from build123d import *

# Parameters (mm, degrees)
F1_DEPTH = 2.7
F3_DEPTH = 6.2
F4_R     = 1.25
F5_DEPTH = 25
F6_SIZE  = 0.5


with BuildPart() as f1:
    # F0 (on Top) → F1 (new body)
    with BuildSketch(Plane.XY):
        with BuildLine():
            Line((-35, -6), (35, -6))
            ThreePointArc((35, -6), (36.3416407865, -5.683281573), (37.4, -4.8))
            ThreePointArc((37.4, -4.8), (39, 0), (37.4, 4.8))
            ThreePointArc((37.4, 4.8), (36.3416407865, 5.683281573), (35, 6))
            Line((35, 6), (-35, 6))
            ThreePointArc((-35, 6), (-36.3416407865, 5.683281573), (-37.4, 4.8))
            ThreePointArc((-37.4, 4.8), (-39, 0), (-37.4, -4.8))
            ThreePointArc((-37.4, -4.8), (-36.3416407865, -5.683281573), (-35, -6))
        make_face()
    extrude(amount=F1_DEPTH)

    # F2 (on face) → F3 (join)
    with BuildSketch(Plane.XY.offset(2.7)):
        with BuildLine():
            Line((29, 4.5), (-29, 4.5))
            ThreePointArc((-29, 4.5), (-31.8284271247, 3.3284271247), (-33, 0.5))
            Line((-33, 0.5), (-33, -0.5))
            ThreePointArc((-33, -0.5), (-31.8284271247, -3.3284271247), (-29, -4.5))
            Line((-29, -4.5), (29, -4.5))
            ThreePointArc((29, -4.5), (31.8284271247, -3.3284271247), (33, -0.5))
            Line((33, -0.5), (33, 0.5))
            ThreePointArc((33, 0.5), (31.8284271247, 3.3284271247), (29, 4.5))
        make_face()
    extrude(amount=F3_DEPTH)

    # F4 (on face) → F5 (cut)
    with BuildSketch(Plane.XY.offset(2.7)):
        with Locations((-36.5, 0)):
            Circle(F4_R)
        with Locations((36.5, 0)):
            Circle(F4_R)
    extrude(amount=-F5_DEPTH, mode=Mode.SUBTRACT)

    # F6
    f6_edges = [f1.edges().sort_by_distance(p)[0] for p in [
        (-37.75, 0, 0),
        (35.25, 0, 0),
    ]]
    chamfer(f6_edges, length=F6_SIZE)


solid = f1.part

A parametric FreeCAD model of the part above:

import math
import FreeCAD as App
import Part
import Sketcher

V = App.Vector


def edges_at(feature, points):
    """Names of the edges that pass closest to the given points."""
    edges = feature.Shape.Edges
    near = lambda p: min(range(len(edges)), key=lambda i: edges[i].distToShape(Part.Vertex(*p))[0])
    return sorted({f"Edge{near(p) + 1}" for p in points})

doc = App.newDocument("Part")
params = doc.addObject("Spreadsheet::Sheet", "Params")
for row, (alias, value) in enumerate([
    ("sketch1_radius", "3 mm"),
    ("sketch1_radius2", "8 mm"),
    ("sketch1_width", "70 mm"),
    ("pad1_length", "2.7 mm"),
    ("sketch2_radius", "4 mm"),
    ("sketch2_width", "58 mm"),
    ("sketch2_height", "1 mm"),
    ("pad2_length", "6.2 mm"),
    ("sketch3_diameter", "2.5 mm"),
    ("pocket1_length", "25 mm"),
    ("chamfer_size", "0.5 mm"),
], start=1):
    params.set(f"A{row}", alias)
    params.set(f"B{row}", "=" + value)
    params.setAlias(f"B{row}", alias)

body = doc.addObject("PartDesign::Body", "Body")

# Sketch on XY plane
sketch1 = doc.addObject("Sketcher::SketchObject", "Sketch")
body.addObject(sketch1)
sketch1.AttachmentSupport = (doc.XY_Plane, [""])
sketch1.MapMode = "FlatFace"
sketch1.addGeometry(Part.LineSegment(V(-35, -6, 0), V(35, -6, 0)), False)
sketch1.addGeometry(Part.ArcOfCircle(Part.Circle(V(35, -3, 0), V(0, 0, 1), 3), math.radians(-90), math.radians(-37)), False)
sketch1.addGeometry(Part.ArcOfCircle(Part.Circle(V(31, 0, 0), V(0, 0, 1), 8), math.radians(-37), math.radians(37)), False)
sketch1.addGeometry(Part.ArcOfCircle(Part.Circle(V(35, 3, 0), V(0, 0, 1), 3), math.radians(37), math.radians(90)), False)
sketch1.addGeometry(Part.LineSegment(V(35, 6, 0), V(-35, 6, 0)), False)
sketch1.addGeometry(Part.ArcOfCircle(Part.Circle(V(-35, 3, 0), V(0, 0, 1), 3), math.radians(90), math.radians(143)), False)
sketch1.addGeometry(Part.ArcOfCircle(Part.Circle(V(-31, 0, 0), V(0, 0, 1), 8), math.radians(143), math.radians(217)), False)
sketch1.addGeometry(Part.ArcOfCircle(Part.Circle(V(-35, -3, 0), V(0, 0, 1), 3), math.radians(-143), math.radians(-90)), False)
sketch1.addConstraint(Sketcher.Constraint("Tangent", 0, 2, 1, 1))
sketch1.addConstraint(Sketcher.Constraint("Tangent", 1, 2, 2, 1))
sketch1.addConstraint(Sketcher.Constraint("Tangent", 2, 2, 3, 1))
sketch1.addConstraint(Sketcher.Constraint("Tangent", 3, 2, 4, 1))
sketch1.addConstraint(Sketcher.Constraint("Tangent", 4, 2, 5, 1))
sketch1.addConstraint(Sketcher.Constraint("Tangent", 5, 2, 6, 1))
sketch1.addConstraint(Sketcher.Constraint("Tangent", 6, 2, 7, 1))
sketch1.addConstraint(Sketcher.Constraint("Tangent", 7, 2, 0, 1))
sketch1.addConstraint(Sketcher.Constraint("Horizontal", 0))
sketch1.addConstraint(Sketcher.Constraint("Horizontal", 4))
sketch1.addConstraint(Sketcher.Constraint("Equal", 1, 3))
sketch1.addConstraint(Sketcher.Constraint("Equal", 3, 5))
sketch1.addConstraint(Sketcher.Constraint("Equal", 2, 6))
sketch1.addConstraint(Sketcher.Constraint("Equal", 5, 7))
sketch1.addConstraint(Sketcher.Constraint("Symmetric", 1, 3, 5, 3, -1, 1))
sketch1.addConstraint(Sketcher.Constraint("Symmetric", 2, 3, 6, 3, -2))
sketch1.addConstraint(Sketcher.Constraint("Radius", 1, 3.0))
sketch1.addConstraint(Sketcher.Constraint("Radius", 2, 8.0))
sketch1.addConstraint(Sketcher.Constraint("DistanceX", 0, 1, 0, 2, 70.0))
sketch1.addConstraint(Sketcher.Constraint("DistanceY", 1, 3, -1, 1, 3.0))
sketch1.setExpression("Constraints[16]", "Params.sketch1_radius")
sketch1.setExpression("Constraints[17]", "Params.sketch1_radius2")
sketch1.setExpression("Constraints[18]", "Params.sketch1_width")
pad1 = doc.addObject("PartDesign::Pad", "Pad")
body.addObject(pad1)
pad1.Profile = sketch1
pad1.setExpression("Length", "Params.pad1_length")

# Sketch on XY plane
sketch2 = doc.addObject("Sketcher::SketchObject", "Sketch001")
body.addObject(sketch2)
sketch2.AttachmentSupport = (doc.XY_Plane, [""])
sketch2.MapMode = "FlatFace"
sketch2.AttachmentOffset = App.Placement(V(0, 0, 2.7), App.Rotation())
sketch2.addGeometry(Part.LineSegment(V(29, 4.5, 0), V(-29, 4.5, 0)), False)
sketch2.addGeometry(Part.ArcOfCircle(Part.Circle(V(-29, 0.5, 0), V(0, 0, 1), 4), math.radians(90), math.radians(180)), False)
sketch2.addGeometry(Part.LineSegment(V(-33, 0.5, 0), V(-33, -0.5, 0)), False)
sketch2.addGeometry(Part.ArcOfCircle(Part.Circle(V(-29, -0.5, 0), V(0, 0, 1), 4), math.radians(180), math.radians(270)), False)
sketch2.addGeometry(Part.LineSegment(V(-29, -4.5, 0), V(29, -4.5, 0)), False)
sketch2.addGeometry(Part.ArcOfCircle(Part.Circle(V(29, -0.5, 0), V(0, 0, 1), 4), math.radians(-90), math.radians(0)), False)
sketch2.addGeometry(Part.LineSegment(V(33, -0.5, 0), V(33, 0.5, 0)), False)
sketch2.addGeometry(Part.ArcOfCircle(Part.Circle(V(29, 0.5, 0), V(0, 0, 1), 4), math.radians(0), math.radians(90)), False)
sketch2.addConstraint(Sketcher.Constraint("Tangent", 0, 2, 1, 1))
sketch2.addConstraint(Sketcher.Constraint("Tangent", 1, 2, 2, 1))
sketch2.addConstraint(Sketcher.Constraint("Tangent", 2, 2, 3, 1))
sketch2.addConstraint(Sketcher.Constraint("Tangent", 3, 2, 4, 1))
sketch2.addConstraint(Sketcher.Constraint("Tangent", 4, 2, 5, 1))
sketch2.addConstraint(Sketcher.Constraint("Tangent", 5, 2, 6, 1))
sketch2.addConstraint(Sketcher.Constraint("Tangent", 6, 2, 7, 1))
sketch2.addConstraint(Sketcher.Constraint("Tangent", 7, 2, 0, 1))
sketch2.addConstraint(Sketcher.Constraint("Horizontal", 0))
sketch2.addConstraint(Sketcher.Constraint("Vertical", 2))
sketch2.addConstraint(Sketcher.Constraint("Horizontal", 4))
sketch2.addConstraint(Sketcher.Constraint("Vertical", 6))
sketch2.addConstraint(Sketcher.Constraint("Equal", 1, 3))
sketch2.addConstraint(Sketcher.Constraint("Equal", 3, 5))
sketch2.addConstraint(Sketcher.Constraint("Equal", 5, 7))
sketch2.addConstraint(Sketcher.Constraint("Symmetric", 1, 3, 5, 3, -1, 1))
sketch2.addConstraint(Sketcher.Constraint("Radius", 1, 4.0))
sketch2.addConstraint(Sketcher.Constraint("DistanceX", 0, 2, 0, 1, 58.0))
sketch2.addConstraint(Sketcher.Constraint("DistanceY", 2, 2, 2, 1, 1.0))
sketch2.setExpression("Constraints[16]", "Params.sketch2_radius")
sketch2.setExpression("Constraints[17]", "Params.sketch2_width")
sketch2.setExpression("Constraints[18]", "Params.sketch2_height")
pad2 = doc.addObject("PartDesign::Pad", "Pad001")
body.addObject(pad2)
pad2.Profile = sketch2
pad2.setExpression("Length", "Params.pad2_length")

# Sketch on XY plane
sketch3 = doc.addObject("Sketcher::SketchObject", "Sketch002")
body.addObject(sketch3)
sketch3.AttachmentSupport = (doc.XY_Plane, [""])
sketch3.MapMode = "FlatFace"
sketch3.AttachmentOffset = App.Placement(V(0, 0, 2.7), App.Rotation())
sketch3.addGeometry(Part.Circle(V(-36.5, 0, 0), V(0, 0, 1), 1.2), False)
sketch3.addGeometry(Part.Circle(V(36.5, 0, 0), V(0, 0, 1), 1.2), False)
sketch3.addConstraint(Sketcher.Constraint("Equal", 0, 1))
sketch3.addConstraint(Sketcher.Constraint("Symmetric", 0, 3, 1, 3, -1, 1))
sketch3.addConstraint(Sketcher.Constraint("PointOnObject", 0, 3, -1))
sketch3.addConstraint(Sketcher.Constraint("Diameter", 0, 2.5))
sketch3.addConstraint(Sketcher.Constraint("DistanceX", 0, 3, 1, 3, 73.0))
sketch3.setExpression("Constraints[3]", "Params.sketch3_diameter")
pocket1 = doc.addObject("PartDesign::Pocket", "Pocket")
body.addObject(pocket1)
pocket1.Profile = sketch3
pocket1.setExpression("Length", "Params.pocket1_length")
doc.recompute()

chamfer = doc.addObject("PartDesign::Chamfer", "Chamfer")
body.addObject(chamfer)
chamfer.Base = (pocket1, edges_at(pocket1, [(-37.75, 0, 0), (35.25, 0, 0)]))
chamfer.setExpression("Size", "Params.chamfer_size")

doc.recompute()
